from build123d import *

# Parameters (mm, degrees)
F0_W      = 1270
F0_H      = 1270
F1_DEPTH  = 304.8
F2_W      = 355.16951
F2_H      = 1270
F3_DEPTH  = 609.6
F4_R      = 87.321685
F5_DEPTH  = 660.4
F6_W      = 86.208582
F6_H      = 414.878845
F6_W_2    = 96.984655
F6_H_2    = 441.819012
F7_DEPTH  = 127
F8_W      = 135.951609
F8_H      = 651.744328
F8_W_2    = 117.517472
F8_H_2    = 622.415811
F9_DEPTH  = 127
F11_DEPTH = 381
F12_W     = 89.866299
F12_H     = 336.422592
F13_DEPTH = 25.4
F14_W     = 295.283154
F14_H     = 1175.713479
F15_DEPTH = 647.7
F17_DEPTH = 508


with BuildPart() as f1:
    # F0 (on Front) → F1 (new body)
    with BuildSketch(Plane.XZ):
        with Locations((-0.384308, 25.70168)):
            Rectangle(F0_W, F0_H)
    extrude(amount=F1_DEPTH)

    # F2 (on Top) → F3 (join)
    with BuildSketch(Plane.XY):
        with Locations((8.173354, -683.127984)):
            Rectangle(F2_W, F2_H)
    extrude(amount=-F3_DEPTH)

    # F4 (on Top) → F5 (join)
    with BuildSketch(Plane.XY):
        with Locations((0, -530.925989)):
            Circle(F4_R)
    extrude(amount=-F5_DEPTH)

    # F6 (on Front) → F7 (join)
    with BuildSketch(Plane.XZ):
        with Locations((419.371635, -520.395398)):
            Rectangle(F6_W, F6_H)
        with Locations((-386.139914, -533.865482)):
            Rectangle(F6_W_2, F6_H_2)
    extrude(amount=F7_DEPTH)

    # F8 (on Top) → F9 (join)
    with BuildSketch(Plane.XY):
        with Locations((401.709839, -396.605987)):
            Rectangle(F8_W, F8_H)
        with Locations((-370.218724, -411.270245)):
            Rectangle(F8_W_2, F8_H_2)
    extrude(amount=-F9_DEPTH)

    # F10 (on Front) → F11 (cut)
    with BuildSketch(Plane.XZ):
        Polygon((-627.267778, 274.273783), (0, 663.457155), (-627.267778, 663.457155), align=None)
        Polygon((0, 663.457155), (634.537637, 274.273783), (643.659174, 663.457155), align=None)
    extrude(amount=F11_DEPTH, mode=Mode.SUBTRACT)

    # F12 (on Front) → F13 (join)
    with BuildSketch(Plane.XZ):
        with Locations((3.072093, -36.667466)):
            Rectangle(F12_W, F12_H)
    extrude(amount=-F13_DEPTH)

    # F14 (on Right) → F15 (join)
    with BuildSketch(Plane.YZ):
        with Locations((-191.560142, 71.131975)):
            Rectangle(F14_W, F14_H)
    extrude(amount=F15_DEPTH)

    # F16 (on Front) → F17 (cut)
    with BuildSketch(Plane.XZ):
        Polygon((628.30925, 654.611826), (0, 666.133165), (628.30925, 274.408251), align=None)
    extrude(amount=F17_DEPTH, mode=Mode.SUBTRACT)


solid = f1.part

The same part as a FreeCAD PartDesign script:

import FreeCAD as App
import Part
import Sketcher

V = App.Vector
Q = App.Units.Quantity


def add_polygon(sketch, points):
    """Adds a closed chain of lines whose ends are joined by coincident constraints."""
    first, n = sketch.GeometryCount, len(points)
    for a, b in zip(points, points[1:] + points[:1]):
        sketch.addGeometry(Part.LineSegment(App.Vector(*a, 0), App.Vector(*b, 0)), False)
    for i in range(n):
        sketch.addConstraint(Sketcher.Constraint("Coincident", first + i, 2, first + (i + 1) % n, 1))

doc = App.newDocument("Part")
body = doc.addObject("PartDesign::Body", "Body")

# Sketch on XZ plane
sketch1 = doc.addObject("Sketcher::SketchObject", "Sketch")
body.addObject(sketch1)
sketch1.AttachmentSupport = (doc.XZ_Plane, [""])
sketch1.MapMode = "FlatFace"
add_polygon(sketch1, [(-635.384308, 660.70168), (-635.384308, -609.29832), (634.615692, -609.29832), (634.615692, 660.70168)])  # lines 0-3
sketch1.addConstraint([
    Sketcher.Constraint("Vertical", 0),
    Sketcher.Constraint("Horizontal", 1),
    Sketcher.Constraint("Vertical", 2),
    Sketcher.Constraint("Horizontal", 3),
    Sketcher.Constraint("Equal", 3, 0),
    Sketcher.Constraint("DistanceX", 1, 1, 1, 2, Q("50 in")),
    Sketcher.Constraint("DistanceX", 0, 2, -1, 1, 635.384308),
    Sketcher.Constraint("DistanceY", 0, 2, -1, 1, 609.29832),
])
pad1 = doc.addObject("PartDesign::Pad", "Pad")
body.addObject(pad1)
pad1.Profile = sketch1
pad1.Length = Q("12 in")

# Sketch on XY plane
sketch2 = doc.addObject("Sketcher::SketchObject", "Sketch001")
body.addObject(sketch2)
sketch2.AttachmentSupport = (doc.XY_Plane, [""])
sketch2.MapMode = "FlatFace"
add_polygon(sketch2, [(-169.411401, -48.127984), (-169.411401, -1318.127984), (185.758109, -1318.127984), (185.758109, -48.127984)])  # lines 0-3
sketch2.addConstraint([
    Sketcher.Constraint("Vertical", 0),
    Sketcher.Constraint("Horizontal", 1),
    Sketcher.Constraint("Vertical", 2),
    Sketcher.Constraint("Horizontal", 3),
    Sketcher.Constraint("DistanceY", 0, 2, 0, 1, Q("50 in")),
    Sketcher.Constraint("DistanceX", 1, 1, 1, 2, 355.16951),
    Sketcher.Constraint("DistanceX", 0, 2, -1, 1, 169.411401),
    Sketcher.Constraint("DistanceY", 0, 2, -1, 1, 1318.127984),
])
pad2 = doc.addObject("PartDesign::Pad", "Pad001")
body.addObject(pad2)
pad2.Profile = sketch2
pad2.Length = Q("24 in")
pad2.Reversed = True

# Sketch on XY plane
sketch3 = doc.addObject("Sketcher::SketchObject", "Sketch002")
body.addObject(sketch3)
sketch3.AttachmentSupport = (doc.XY_Plane, [""])
sketch3.MapMode = "FlatFace"
sketch3.addGeometry(Part.Circle(V(0, -530.925989, 0), V(0, 0, 1), 87.321685), False)
sketch3.addConstraint([
    Sketcher.Constraint("PointOnObject", 0, 3, -2),
    Sketcher.Constraint("Diameter", 0, 174.64337),
    Sketcher.Constraint("DistanceY", 0, 3, -1, 1, 530.925989),
])
pad3 = doc.addObject("PartDesign::Pad", "Pad002")
body.addObject(pad3)
pad3.Profile = sketch3
pad3.Length = Q("26 in")
pad3.Reversed = True

# Sketch on XZ plane
sketch4 = doc.addObject("Sketcher::SketchObject", "Sketch003")
body.addObject(sketch4)
sketch4.AttachmentSupport = (doc.XZ_Plane, [""])
sketch4.MapMode = "FlatFace"
add_polygon(sketch4, [(376.267344, -312.955976), (376.267344, -727.83482), (462.475926, -727.83482), (462.475926, -312.955976)])  # lines 0-3
add_polygon(sketch4, [(-434.632242, -312.955976), (-434.632242, -754.774988), (-337.647586, -754.774988), (-337.647586, -312.955976)])  # lines 4-7
sketch4.addConstraint([
    Sketcher.Constraint("Vertical", 0),
    Sketcher.Constraint("Horizontal", 1),
    Sketcher.Constraint("Vertical", 2),
    Sketcher.Constraint("Horizontal", 3),
    Sketcher.Constraint("Vertical", 4),
    Sketcher.Constraint("Horizontal", 5),
    Sketcher.Constraint("Vertical", 6),
    Sketcher.Constraint("Horizontal", 7),
    Sketcher.Constraint("Horizontal", 3, 2, 6, 2),
    Sketcher.Constraint("DistanceY", 4, 2, 4, 1, 441.819012),
    Sketcher.Constraint("DistanceX", 1, 1, 1, 2, 86.208582),
    Sketcher.Constraint("DistanceX", 5, 1, 5, 2, 96.984655),
    Sketcher.Constraint("DistanceY", 0, 2, 0, 1, 414.878845),
    Sketcher.Constraint("DistanceY", 0, 2, -1, 1, 727.83482),
    Sketcher.Constraint("DistanceX", 4, 2, -1, 1, 434.632242),
    Sketcher.Constraint("DistanceX", 5, 2, 0, 2, 713.91493),
])
pad4 = doc.addObject("PartDesign::Pad", "Pad003")
body.addObject(pad4)
pad4.Profile = sketch4
pad4.Length = Q("5 in")

# Sketch on XY plane
sketch5 = doc.addObject("Sketcher::SketchObject", "Sketch004")
body.addObject(sketch5)
sketch5.AttachmentSupport = (doc.XY_Plane, [""])
sketch5.MapMode = "FlatFace"
add_polygon(sketch5, [(333.734035, -70.733823), (333.734035, -722.478151), (469.685644, -722.478151), (469.685644, -70.733823)])  # lines 0-3
add_polygon(sketch5, [(-428.97746, -100.062339), (-428.97746, -722.47815), (-311.459988, -722.47815), (-311.459988, -100.062339)])  # lines 4-7
sketch5.addConstraint([
    Sketcher.Constraint("Vertical", 0),
    Sketcher.Constraint("Horizontal", 1),
    Sketcher.Constraint("Vertical", 2),
    Sketcher.Constraint("Horizontal", 3),
    Sketcher.Constraint("Vertical", 4),
    Sketcher.Constraint("Horizontal", 5),
    Sketcher.Constraint("Vertical", 6),
    Sketcher.Constraint("Horizontal", 7),
    Sketcher.Constraint("Horizontal", 1, 2, 4, 2),
    Sketcher.Constraint("DistanceX", 1, 1, 1, 2, 135.951609),
    Sketcher.Constraint("DistanceX", 5, 1, 5, 2, 117.517472),
    Sketcher.Constraint("DistanceY", 0, 2, 0, 1, 651.744328),
    Sketcher.Constraint("DistanceY", 4, 2, 4, 1, 622.415811),
    Sketcher.Constraint("DistanceY", 0, 2, -1, 1, 722.478151),
    Sketcher.Constraint("DistanceX", 4, 2, -1, 1, 428.97746),
    Sketcher.Constraint("DistanceX", 5, 2, 1, 2, 781.145632),
])
pad5 = doc.addObject("PartDesign::Pad", "Pad004")
body.addObject(pad5)
pad5.Profile = sketch5
pad5.Length = Q("5 in")
pad5.Reversed = True

# Sketch on XZ plane
sketch6 = doc.addObject("Sketcher::SketchObject", "Sketch005")
body.addObject(sketch6)
sketch6.AttachmentSupport = (doc.XZ_Plane, [""])
sketch6.MapMode = "FlatFace"
add_polygon(sketch6, [(-627.267778, 274.273783), (0, 663.457155), (-627.267778, 663.457155)])  # lines 0-2
add_polygon(sketch6, [(0, 663.457155), (634.537637, 274.273783), (643.659174, 663.457155)])  # lines 3-5
sketch6.addConstraint([
    Sketcher.Constraint("Horizontal", 1),
    Sketcher.Constraint("Vertical", 2),
    Sketcher.Constraint("Horizontal", 5),
    Sketcher.Constraint("Coincident", 5, 2, 0, 2),
    Sketcher.Constraint("PointOnObject", 0, 2, -2),
    Sketcher.Constraint("Horizontal", 2, 2, 3, 2),
    Sketcher.Constraint("DistanceX", 1, 2, 1, 1, 627.267778),
    Sketcher.Constraint("DistanceY", 2, 2, 2, 1, 389.183372),
    Sketcher.Constraint("Distance", 4, 389.290251),
    Sketcher.Constraint("DistanceX", 5, 2, 5, 1, 643.659174),
    Sketcher.Constraint("DistanceY", -1, 1, 0, 2, 663.457155),
])
pocket1 = doc.addObject("PartDesign::Pocket", "Pocket")
body.addObject(pocket1)
pocket1.Profile = sketch6
pocket1.Length = Q("15 in")
pocket1.Reversed = True

# Sketch on XZ plane
sketch7 = doc.addObject("Sketcher::SketchObject", "Sketch006")
body.addObject(sketch7)
sketch7.AttachmentSupport = (doc.XZ_Plane, [""])
sketch7.MapMode = "FlatFace"
add_polygon(sketch7, [(-41.861056, 131.54383), (-41.861056, -204.878762), (48.005243, -204.878762), (48.005243, 131.54383)])  # lines 0-3
sketch7.addConstraint([
    Sketcher.Constraint("Vertical", 0),
    Sketcher.Constraint("Horizontal", 1),
    Sketcher.Constraint("Vertical", 2),
    Sketcher.Constraint("Horizontal", 3),
    Sketcher.Constraint("DistanceX", 1, 1, 1, 2, 89.866299),
    Sketcher.Constraint("DistanceY", 0, 2, 0, 1, 336.422592),
    Sketcher.Constraint("DistanceY", 0, 2, -1, 1, 204.878762),
    Sketcher.Constraint("DistanceX", 0, 2, -1, 1, 41.861056),
])
pad6 = doc.addObject("PartDesign::Pad", "Pad005")
body.addObject(pad6)
pad6.Profile = sketch7
pad6.Length = Q("1 in")
pad6.Reversed = True

# Sketch on YZ plane
sketch8 = doc.addObject("Sketcher::SketchObject", "Sketch007")
body.addObject(sketch8)
sketch8.AttachmentSupport = (doc.YZ_Plane, [""])
sketch8.MapMode = "FlatFace"
add_polygon(sketch8, [(-339.201719, 658.988715), (-339.201719, -516.724764), (-43.918565, -516.724764), (-43.918565, 658.988715)])  # lines 0-3
sketch8.addConstraint([
    Sketcher.Constraint("Vertical", 0),
    Sketcher.Constraint("Horizontal", 1),
    Sketcher.Constraint("Vertical", 2),
    Sketcher.Constraint("Horizontal", 3),
    Sketcher.Constraint("DistanceY", 0, 2, 0, 1, 1175.713479),
    Sketcher.Constraint("DistanceX", 1, 1, 1, 2, 295.283154),
    Sketcher.Constraint("DistanceX", 0, 2, -1, 1, 339.201719),
    Sketcher.Constraint("DistanceY", 0, 2, -1, 1, 516.724764),
])
pad7 = doc.addObject("PartDesign::Pad", "Pad006")
body.addObject(pad7)
pad7.Profile = sketch8
pad7.Length = Q("25.5 in")

# Sketch on XZ plane
sketch9 = doc.addObject("Sketcher::SketchObject", "Sketch008")
body.addObject(sketch9)
sketch9.AttachmentSupport = (doc.XZ_Plane, [""])
sketch9.MapMode = "FlatFace"
add_polygon(sketch9, [(628.30925, 654.611826), (0, 666.133165), (628.30925, 274.408251)])  # lines 0-2
sketch9.addConstraint([
    Sketcher.Constraint("Vertical", 2),
    Sketcher.Constraint("PointOnObject", 0, 2, -2),
    Sketcher.Constraint("DistanceY", 2, 1, 2, 2, 380.203575),
    Sketcher.Constraint("DistanceX", -1, 1, 1, 2, 628.30925),
    Sketcher.Constraint("DistanceY", -1, 1, 1, 2, 274.408251),
    Sketcher.Constraint("DistanceY", 2, 2, 0, 2, 11.521339),
])
pocket2 = doc.addObject("PartDesign::Pocket", "Pocket001")
body.addObject(pocket2)
pocket2.Profile = sketch9
pocket2.Length = Q("20 in")
pocket2.Reversed = True

doc.recompute()
